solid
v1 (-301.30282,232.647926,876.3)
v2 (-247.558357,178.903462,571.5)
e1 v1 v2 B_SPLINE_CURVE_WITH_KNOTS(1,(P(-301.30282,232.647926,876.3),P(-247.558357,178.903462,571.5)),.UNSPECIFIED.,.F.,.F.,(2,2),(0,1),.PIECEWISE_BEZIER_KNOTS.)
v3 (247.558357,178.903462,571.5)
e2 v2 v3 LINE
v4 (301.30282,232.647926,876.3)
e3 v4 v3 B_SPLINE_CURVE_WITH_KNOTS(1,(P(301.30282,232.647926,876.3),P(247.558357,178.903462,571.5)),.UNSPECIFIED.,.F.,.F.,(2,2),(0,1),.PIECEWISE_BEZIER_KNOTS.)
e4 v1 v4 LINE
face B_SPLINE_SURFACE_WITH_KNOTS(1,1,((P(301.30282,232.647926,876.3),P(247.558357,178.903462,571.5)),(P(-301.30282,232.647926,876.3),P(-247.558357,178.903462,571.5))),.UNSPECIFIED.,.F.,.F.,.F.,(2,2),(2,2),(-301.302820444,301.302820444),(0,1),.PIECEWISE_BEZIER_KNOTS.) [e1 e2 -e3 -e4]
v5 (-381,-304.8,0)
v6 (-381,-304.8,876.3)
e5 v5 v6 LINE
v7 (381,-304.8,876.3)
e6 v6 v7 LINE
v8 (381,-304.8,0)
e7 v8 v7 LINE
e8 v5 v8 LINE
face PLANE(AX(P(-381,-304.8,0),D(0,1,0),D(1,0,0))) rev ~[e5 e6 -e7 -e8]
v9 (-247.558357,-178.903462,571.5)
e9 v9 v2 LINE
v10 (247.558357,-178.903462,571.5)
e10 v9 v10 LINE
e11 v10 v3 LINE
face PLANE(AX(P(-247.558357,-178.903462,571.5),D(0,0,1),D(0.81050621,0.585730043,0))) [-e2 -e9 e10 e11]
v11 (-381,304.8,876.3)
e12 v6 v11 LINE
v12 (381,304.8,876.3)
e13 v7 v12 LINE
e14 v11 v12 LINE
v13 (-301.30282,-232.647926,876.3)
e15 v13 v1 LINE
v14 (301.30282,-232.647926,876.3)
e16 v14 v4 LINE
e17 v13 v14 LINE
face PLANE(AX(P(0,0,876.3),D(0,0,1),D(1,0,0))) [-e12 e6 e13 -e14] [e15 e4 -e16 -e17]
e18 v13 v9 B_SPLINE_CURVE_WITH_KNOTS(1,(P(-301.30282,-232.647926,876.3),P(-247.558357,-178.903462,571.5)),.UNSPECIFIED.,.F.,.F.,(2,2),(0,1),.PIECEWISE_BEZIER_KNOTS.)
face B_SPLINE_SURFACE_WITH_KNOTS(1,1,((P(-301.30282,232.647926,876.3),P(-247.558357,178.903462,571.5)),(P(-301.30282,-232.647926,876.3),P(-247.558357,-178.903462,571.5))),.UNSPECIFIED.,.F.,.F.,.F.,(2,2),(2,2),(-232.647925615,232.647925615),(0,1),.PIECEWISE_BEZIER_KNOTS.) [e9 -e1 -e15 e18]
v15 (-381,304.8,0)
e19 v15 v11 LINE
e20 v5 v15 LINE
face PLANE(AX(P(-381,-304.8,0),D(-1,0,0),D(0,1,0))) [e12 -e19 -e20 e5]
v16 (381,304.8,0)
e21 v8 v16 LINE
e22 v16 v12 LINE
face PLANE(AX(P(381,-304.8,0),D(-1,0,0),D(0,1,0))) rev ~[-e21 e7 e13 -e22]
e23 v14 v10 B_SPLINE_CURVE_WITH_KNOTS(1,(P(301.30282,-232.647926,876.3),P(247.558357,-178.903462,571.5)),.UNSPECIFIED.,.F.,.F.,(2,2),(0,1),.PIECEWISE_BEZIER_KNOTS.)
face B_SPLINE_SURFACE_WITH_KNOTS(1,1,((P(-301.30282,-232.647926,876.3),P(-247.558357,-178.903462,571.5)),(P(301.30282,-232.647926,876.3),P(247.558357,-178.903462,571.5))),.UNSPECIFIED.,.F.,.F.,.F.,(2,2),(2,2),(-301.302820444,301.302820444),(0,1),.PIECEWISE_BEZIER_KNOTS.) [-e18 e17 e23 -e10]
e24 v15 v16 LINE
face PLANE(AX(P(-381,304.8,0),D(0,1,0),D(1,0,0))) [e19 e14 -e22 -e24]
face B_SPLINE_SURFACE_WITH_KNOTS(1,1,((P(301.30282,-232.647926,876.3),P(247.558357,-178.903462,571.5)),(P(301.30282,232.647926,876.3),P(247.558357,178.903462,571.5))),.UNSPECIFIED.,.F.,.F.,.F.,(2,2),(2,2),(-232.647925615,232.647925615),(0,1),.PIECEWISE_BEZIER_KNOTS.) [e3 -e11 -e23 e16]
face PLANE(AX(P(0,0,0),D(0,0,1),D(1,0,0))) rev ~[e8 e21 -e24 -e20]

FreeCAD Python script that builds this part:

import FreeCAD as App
import Part
import Sketcher
Q = App.Units.Quantity

doc = App.newDocument("Part")
body = doc.addObject("PartDesign::Body", "Body")

sketch1 = body.newObject("Sketcher::SketchObject", "Sketch")
sketch1.AttachmentSupport = (doc.getObject("XY_Plane"), [""])
sketch1.MapMode = "FlatFace"
sketch1.addGeometry([
    Part.LineSegment(App.Vector(-381, 304.8, 0), App.Vector(-381, -304.8, 0)),
    Part.LineSegment(App.Vector(-381, -304.8, 0), App.Vector(381, -304.8, 0)),
    Part.LineSegment(App.Vector(381, -304.8, 0), App.Vector(381, 304.8, 0)),
    Part.LineSegment(App.Vector(381, 304.8, 0), App.Vector(-381, 304.8, 0)),
], False)
sketch1.addConstraint([
    Sketcher.Constraint("Coincident", 0, 2, 1, 1),
    Sketcher.Constraint("Coincident", 1, 2, 2, 1),
    Sketcher.Constraint("Coincident", 2, 2, 3, 1),
    Sketcher.Constraint("Coincident", 3, 2, 0, 1),
    Sketcher.Constraint("Vertical", 0),
    Sketcher.Constraint("Horizontal", 1),
    Sketcher.Constraint("Vertical", 2),
    Sketcher.Constraint("Horizontal", 3),
    Sketcher.Constraint("Symmetric", 0, 2, 2, 2, -1, 1),
    Sketcher.Constraint("DistanceX", 1, 1, 1, 2, Q("30 in")),
    Sketcher.Constraint("DistanceY", 0, 2, 0, 1, Q("24 in")),
])
pad1 = body.newObject("PartDesign::Pad", "Pad")
pad1.Profile = sketch1
pad1.Length = Q("34.5 in")

sketch2 = body.newObject("Sketcher::SketchObject", "Sketch001")
sketch2.AttachmentSupport = (doc.getObject("XY_Plane"), [""])
sketch2.MapMode = "FlatFace"
sketch2.AttachmentOffset = App.Placement(App.Vector(0, 0, 34.5 * 25.4), App.Rotation())
sketch2.addGeometry([
    Part.LineSegment(App.Vector(-301.30282, 232.647926, 0), App.Vector(-301.30282, -232.647926, 0)),
    Part.LineSegment(App.Vector(-301.30282, -232.647926, 0), App.Vector(301.30282, -232.647926, 0)),
    Part.LineSegment(App.Vector(301.30282, -232.647926, 0), App.Vector(301.30282, 232.647926, 0)),
    Part.LineSegment(App.Vector(301.30282, 232.647926, 0), App.Vector(-301.30282, 232.647926, 0)),
], False)
sketch2.addConstraint([
    Sketcher.Constraint("Coincident", 0, 2, 1, 1),
    Sketcher.Constraint("Coincident", 1, 2, 2, 1),
    Sketcher.Constraint("Coincident", 2, 2, 3, 1),
    Sketcher.Constraint("Coincident", 3, 2, 0, 1),
    Sketcher.Constraint("Vertical", 0),
    Sketcher.Constraint("Horizontal", 1),
    Sketcher.Constraint("Vertical", 2),
    Sketcher.Constraint("Horizontal", 3),
    Sketcher.Constraint("Symmetric", 0, 2, 2, 2, -1, 1),
    Sketcher.Constraint("DistanceX", 1, 1, 1, 2, Q("602.605641 mm")),
    Sketcher.Constraint("DistanceY", 0, 2, 0, 1, Q("465.295851 mm")),
])
pocket1 = body.newObject("PartDesign::Pocket", "Pocket")
pocket1.Profile = sketch2
pocket1.Length = Q("12 in")
pocket1.TaperAngle = -10

doc.recompute()
